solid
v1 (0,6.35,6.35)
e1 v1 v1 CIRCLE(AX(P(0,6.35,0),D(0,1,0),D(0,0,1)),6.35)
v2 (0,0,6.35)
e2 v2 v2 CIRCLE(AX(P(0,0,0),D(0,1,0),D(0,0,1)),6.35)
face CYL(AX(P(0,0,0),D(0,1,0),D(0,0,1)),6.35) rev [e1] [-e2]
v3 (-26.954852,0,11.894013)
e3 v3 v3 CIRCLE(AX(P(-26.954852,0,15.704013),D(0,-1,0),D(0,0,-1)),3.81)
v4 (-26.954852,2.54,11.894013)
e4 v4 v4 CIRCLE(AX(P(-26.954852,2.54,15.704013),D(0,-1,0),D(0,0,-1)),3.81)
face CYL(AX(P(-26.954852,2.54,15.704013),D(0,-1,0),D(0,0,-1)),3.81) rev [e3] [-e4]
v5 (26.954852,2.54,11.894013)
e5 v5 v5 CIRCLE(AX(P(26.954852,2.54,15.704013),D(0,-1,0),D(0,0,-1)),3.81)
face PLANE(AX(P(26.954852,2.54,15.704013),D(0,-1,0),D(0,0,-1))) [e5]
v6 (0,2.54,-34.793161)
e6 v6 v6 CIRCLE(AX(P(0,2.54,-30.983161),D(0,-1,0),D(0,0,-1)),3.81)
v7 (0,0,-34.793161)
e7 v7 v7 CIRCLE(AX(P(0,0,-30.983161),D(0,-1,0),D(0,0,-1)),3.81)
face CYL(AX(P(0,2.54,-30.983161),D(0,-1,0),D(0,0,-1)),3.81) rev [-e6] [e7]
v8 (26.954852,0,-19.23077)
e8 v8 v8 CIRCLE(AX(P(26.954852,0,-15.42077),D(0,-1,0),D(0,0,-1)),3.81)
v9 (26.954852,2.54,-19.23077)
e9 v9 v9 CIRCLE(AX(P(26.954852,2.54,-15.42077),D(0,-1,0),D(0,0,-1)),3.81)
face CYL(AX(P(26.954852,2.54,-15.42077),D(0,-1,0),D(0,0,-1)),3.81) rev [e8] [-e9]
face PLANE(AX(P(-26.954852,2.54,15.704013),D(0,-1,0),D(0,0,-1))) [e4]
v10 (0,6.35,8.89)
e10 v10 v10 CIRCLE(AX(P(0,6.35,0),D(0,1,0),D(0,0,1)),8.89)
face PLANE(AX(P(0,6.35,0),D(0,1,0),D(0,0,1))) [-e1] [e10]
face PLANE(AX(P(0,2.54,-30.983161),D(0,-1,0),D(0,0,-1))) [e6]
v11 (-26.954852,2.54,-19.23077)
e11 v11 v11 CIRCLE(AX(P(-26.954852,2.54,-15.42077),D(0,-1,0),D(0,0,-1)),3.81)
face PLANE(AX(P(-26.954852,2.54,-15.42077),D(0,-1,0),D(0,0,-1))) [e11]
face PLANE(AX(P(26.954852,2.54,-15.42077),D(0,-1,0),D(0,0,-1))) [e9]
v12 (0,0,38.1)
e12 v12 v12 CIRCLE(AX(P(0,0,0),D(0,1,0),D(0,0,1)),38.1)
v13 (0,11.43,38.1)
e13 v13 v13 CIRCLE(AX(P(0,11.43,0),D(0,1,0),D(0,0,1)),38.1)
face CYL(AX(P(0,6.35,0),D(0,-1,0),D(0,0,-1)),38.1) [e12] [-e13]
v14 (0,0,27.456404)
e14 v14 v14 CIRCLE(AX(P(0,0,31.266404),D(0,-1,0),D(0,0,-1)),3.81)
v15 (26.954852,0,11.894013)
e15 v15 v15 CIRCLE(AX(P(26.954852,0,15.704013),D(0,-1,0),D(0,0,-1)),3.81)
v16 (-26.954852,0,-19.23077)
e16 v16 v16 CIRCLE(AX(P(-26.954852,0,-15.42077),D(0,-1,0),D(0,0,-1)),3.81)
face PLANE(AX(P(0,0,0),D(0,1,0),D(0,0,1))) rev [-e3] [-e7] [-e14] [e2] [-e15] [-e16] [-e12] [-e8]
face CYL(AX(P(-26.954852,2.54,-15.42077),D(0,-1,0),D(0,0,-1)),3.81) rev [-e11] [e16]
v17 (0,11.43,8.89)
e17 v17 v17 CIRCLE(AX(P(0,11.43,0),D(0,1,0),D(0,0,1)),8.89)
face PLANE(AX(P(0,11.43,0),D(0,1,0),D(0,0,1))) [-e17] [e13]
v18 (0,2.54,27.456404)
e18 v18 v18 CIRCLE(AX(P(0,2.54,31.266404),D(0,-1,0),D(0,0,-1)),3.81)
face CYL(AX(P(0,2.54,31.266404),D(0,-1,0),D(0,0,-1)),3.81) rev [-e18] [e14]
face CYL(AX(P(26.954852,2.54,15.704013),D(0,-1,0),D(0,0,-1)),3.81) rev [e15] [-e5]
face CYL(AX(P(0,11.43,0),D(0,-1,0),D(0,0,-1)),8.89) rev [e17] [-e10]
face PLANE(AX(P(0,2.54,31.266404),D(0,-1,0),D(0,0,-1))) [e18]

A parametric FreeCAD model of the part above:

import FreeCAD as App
import Part
import Sketcher
Q = App.Units.Quantity

doc = App.newDocument("Part")
body = doc.addObject("PartDesign::Body", "Body")

# Sketch on XZ plane
sketch1 = body.newObject("Sketcher::SketchObject", "Sketch")
sketch1.AttachmentSupport = (doc.getObject("XZ_Plane"), [""])
sketch1.MapMode = "FlatFace"
sketch1.addGeometry([
    Part.Circle(App.Vector(0, 0, 0), App.Vector(0, 0, 1), 38),
    Part.Circle(App.Vector(0, 0, 0), App.Vector(0, 0, 1), 25),
], False)
sketch1.addConstraint([
    Sketcher.Constraint("Coincident", 0, 3, -1, 1),
    Sketcher.Constraint("Coincident", 1, 3, -1, 1),
    Sketcher.Constraint("Diameter", 0, Q("3 in")),
    Sketcher.Constraint("Diameter", 1, Q("2 in")),
])
pad1 = body.newObject("PartDesign::Pad", "Pad")
pad1.Profile = sketch1
pad1.Length = Q("0.25 in")
pad1.Reversed = True

# Sketch on XZ plane
sketch2 = body.newObject("Sketcher::SketchObject", "Sketch001")
sketch2.AttachmentSupport = (doc.getObject("XZ_Plane"), [""])
sketch2.MapMode = "FlatFace"
sketch2.addGeometry(Part.Circle(App.Vector(0, 0, 0), App.Vector(0, 0, 1), 25), False)
sketch2.addConstraint([
    Sketcher.Constraint("Coincident", 0, 3, -1, 1),
    Sketcher.Constraint("Diameter", 0, Q("2 in")),
])
pad2 = body.newObject("PartDesign::Pad", "Pad001")
pad2.Profile = sketch2
pad2.Length = Q("0.25 in")
pad2.Reversed = True

# Sketch on XZ plane
sketch3 = body.newObject("Sketcher::SketchObject", "Sketch002")
sketch3.AttachmentSupport = (doc.getObject("XZ_Plane"), [""])
sketch3.MapMode = "FlatFace"
sketch3.addGeometry([
    Part.Circle(App.Vector(0, 31.3, 0), App.Vector(0, 0, 1), 3.8),  # 0
    Part.Circle(App.Vector(27, 15.7, 0), App.Vector(0, 0, 1), 3.8),  # 1
    Part.Circle(App.Vector(27, -15.4, 0), App.Vector(0, 0, 1), 3.8),  # 2
    Part.Circle(App.Vector(0, -31, 0), App.Vector(0, 0, 1), 3.8),  # 3
    Part.Circle(App.Vector(-27, -15.4, 0), App.Vector(0, 0, 1), 3.8),  # 4
    Part.Circle(App.Vector(-27, 15.7, 0), App.Vector(0, 0, 1), 3.8),  # 5
], False)
sketch3.addConstraint([
    Sketcher.Constraint("Equal", 0, 1),
    Sketcher.Constraint("Equal", 1, 2),
    Sketcher.Constraint("Equal", 2, 3),
    Sketcher.Constraint("Equal", 3, 4),
    Sketcher.Constraint("Equal", 4, 5),
    Sketcher.Constraint("Symmetric", 2, 3, 4, 3, -2),
    Sketcher.Constraint("Symmetric", 1, 3, 5, 3, -2),
    Sketcher.Constraint("PointOnObject", 0, 3, -2),
    Sketcher.Constraint("PointOnObject", 3, 3, -2),
    Sketcher.Constraint("Vertical", 1, 3, 2, 3),
    Sketcher.Constraint("Diameter", 0, Q("0.3 in")),
    Sketcher.Constraint("DistanceY", 2, 3, -1, 1, Q("15.42077 mm")),
    Sketcher.Constraint("DistanceY", 3, 3, -1, 1, Q("30.983161 mm")),
    Sketcher.Constraint("DistanceY", 1, 3, 0, 3, Q("15.562391 mm")),
    Sketcher.Constraint("DistanceY", -1, 1, 0, 3, Q("31.266404 mm")),
    Sketcher.Constraint("DistanceX", -1, 1, 1, 3, Q("26.954852 mm")),
])
pocket1 = body.newObject("PartDesign::Pocket", "Pocket")
pocket1.Profile = sketch3
pocket1.Length = Q("0.1 in")

# Sketch on XZ plane
sketch4 = body.newObject("Sketcher::SketchObject", "Sketch003")
sketch4.AttachmentSupport = (doc.getObject("XZ_Plane"), [""])
sketch4.MapMode = "FlatFace"
sketch4.AttachmentOffset = App.Placement(App.Vector(0, 0, -0.25 * 25.4), App.Rotation())
sketch4.addGeometry(Part.Circle(App.Vector(0, 0, 0), App.Vector(0, 0, 1), 6), False)
sketch4.addConstraint([
    Sketcher.Constraint("Coincident", 0, 3, -1, 1),
    Sketcher.Constraint("Diameter", 0, Q("0.5 in")),
])
pocket2 = body.newObject("PartDesign::Pocket", "Pocket001")
pocket2.Profile = sketch4
pocket2.Type = "ThroughAll"
pocket2.Reversed = True

# Sketch on XZ plane
sketch5 = body.newObject("Sketcher::SketchObject", "Sketch004")
sketch5.AttachmentSupport = (doc.getObject("XZ_Plane"), [""])
sketch5.MapMode = "FlatFace"
sketch5.AttachmentOffset = App.Placement(App.Vector(0, 0, -0.25 * 25.4), App.Rotation())
sketch5.addGeometry([
    Part.Circle(App.Vector(0, 0, 0), App.Vector(0, 0, 1), 38),
    Part.Circle(App.Vector(0, 0, 0), App.Vector(0, 0, 1), 9),
], False)
sketch5.addConstraint([
    Sketcher.Constraint("Coincident", 0, 3, -1, 1),
    Sketcher.Constraint("Coincident", 1, 3, -1, 1),
    Sketcher.Constraint("Diameter", 0, Q("3 in")),
    Sketcher.Constraint("Diameter", 1, Q("0.7 in")),
])
pad3 = body.newObject("PartDesign::Pad", "Pad002")
pad3.Profile = sketch5
pad3.Length = Q("0.2 in")
pad3.Reversed = True

doc.recompute()
